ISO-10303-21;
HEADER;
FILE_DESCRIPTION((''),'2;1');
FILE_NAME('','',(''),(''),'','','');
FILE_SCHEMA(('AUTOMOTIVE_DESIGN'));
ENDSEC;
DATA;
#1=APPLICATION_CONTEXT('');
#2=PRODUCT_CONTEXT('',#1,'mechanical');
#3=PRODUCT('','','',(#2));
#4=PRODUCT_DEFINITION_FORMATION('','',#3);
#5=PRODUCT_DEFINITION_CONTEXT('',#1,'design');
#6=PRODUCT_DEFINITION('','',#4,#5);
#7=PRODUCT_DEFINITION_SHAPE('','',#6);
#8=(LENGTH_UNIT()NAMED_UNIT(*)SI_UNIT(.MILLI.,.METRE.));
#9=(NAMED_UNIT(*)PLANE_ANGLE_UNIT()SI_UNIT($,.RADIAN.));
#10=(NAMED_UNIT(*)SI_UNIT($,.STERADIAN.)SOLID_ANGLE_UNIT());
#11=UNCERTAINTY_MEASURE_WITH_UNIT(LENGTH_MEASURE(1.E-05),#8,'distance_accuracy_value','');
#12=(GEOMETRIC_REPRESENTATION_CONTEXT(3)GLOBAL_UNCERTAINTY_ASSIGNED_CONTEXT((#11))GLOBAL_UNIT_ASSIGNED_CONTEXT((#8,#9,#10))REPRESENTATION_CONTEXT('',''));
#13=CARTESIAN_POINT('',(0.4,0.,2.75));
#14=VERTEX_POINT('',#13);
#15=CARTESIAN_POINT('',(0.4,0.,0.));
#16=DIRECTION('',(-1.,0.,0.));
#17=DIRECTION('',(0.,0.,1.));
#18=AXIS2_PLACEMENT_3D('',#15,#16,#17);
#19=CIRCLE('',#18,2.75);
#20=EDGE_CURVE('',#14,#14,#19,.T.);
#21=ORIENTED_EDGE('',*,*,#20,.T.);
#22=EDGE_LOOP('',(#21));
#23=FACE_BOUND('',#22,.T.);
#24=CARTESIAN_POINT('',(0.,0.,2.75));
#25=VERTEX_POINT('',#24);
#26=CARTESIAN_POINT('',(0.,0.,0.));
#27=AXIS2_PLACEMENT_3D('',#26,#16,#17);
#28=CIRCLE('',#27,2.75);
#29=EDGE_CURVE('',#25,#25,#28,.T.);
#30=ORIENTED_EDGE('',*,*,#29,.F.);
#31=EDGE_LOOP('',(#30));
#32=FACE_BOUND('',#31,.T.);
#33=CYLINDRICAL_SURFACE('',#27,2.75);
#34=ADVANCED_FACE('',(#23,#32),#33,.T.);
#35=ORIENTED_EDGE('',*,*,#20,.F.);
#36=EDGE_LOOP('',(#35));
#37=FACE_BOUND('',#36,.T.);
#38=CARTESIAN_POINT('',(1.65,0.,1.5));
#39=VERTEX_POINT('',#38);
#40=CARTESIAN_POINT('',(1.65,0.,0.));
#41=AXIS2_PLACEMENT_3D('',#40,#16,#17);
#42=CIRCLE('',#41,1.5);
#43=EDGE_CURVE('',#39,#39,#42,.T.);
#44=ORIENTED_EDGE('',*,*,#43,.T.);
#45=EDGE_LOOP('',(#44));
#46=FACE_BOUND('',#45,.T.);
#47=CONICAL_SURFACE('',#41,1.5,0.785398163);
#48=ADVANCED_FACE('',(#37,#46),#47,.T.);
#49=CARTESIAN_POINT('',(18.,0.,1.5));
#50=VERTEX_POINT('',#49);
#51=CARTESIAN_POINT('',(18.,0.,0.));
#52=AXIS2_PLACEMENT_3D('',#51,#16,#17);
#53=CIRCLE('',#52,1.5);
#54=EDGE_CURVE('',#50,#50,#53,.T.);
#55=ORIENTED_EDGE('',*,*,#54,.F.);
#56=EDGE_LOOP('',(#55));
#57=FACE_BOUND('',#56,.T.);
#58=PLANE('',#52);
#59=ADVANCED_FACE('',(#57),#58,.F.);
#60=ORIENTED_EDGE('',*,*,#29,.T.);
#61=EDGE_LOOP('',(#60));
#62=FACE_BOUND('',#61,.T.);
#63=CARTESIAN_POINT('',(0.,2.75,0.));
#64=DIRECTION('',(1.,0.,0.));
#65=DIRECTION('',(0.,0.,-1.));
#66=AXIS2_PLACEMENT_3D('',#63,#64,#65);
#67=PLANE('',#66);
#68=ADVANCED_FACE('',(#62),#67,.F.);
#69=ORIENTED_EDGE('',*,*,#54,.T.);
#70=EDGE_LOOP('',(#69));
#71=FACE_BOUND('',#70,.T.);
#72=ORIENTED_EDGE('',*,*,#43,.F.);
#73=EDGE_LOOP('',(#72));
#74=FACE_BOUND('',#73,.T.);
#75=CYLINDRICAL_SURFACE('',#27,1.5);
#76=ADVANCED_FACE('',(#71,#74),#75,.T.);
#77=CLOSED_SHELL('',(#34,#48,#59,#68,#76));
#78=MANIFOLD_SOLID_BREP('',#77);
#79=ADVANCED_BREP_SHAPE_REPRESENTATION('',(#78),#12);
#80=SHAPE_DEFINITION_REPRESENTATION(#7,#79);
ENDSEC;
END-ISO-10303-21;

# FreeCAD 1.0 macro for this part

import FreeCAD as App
import Part
import Sketcher

V = App.Vector
Q = App.Units.Quantity

doc = App.newDocument("Part")
body = doc.addObject("PartDesign::Body", "Body")

# Sketch on XY plane
sketch1 = body.newObject("Sketcher::SketchObject", "Sketch")
sketch1.AttachmentSupport = (doc.getObject("XY_Plane"), [""])
sketch1.MapMode = "FlatFace"
sketch1.addGeometry([
    Part.LineSegment(V(0, 0, 0), V(18, 0, 0)),  # 0
    Part.LineSegment(V(18, 0, 0), V(18, 1.5, 0)),  # 1
    Part.LineSegment(V(18, 1.5, 0), V(1.65, 1.5, 0)),  # 2
    Part.LineSegment(V(1.65, 1.5, 0), V(0.4, 2.75, 0)),  # 3
    Part.LineSegment(V(0.4, 2.75, 0), V(0, 2.75, 0)),  # 4
    Part.LineSegment(V(0, 2.75, 0), V(0, 0, 0)),  # 5
], False)
sketch1.addConstraint([
    Sketcher.Constraint("Coincident", 0, 2, 1, 1),
    Sketcher.Constraint("Coincident", 1, 2, 2, 1),
    Sketcher.Constraint("Coincident", 2, 2, 3, 1),
    Sketcher.Constraint("Coincident", 3, 2, 4, 1),
    Sketcher.Constraint("Coincident", 4, 2, 5, 1),
    Sketcher.Constraint("Coincident", 5, 2, 0, 1),
    Sketcher.Constraint("Horizontal", 0),
    Sketcher.Constraint("Vertical", 1),
    Sketcher.Constraint("Horizontal", 2),
    Sketcher.Constraint("Horizontal", 4),
    Sketcher.Constraint("Vertical", 5),
    Sketcher.Constraint("Coincident", 5, 2, -1, 1),
    Sketcher.Constraint("DistanceX", 0, 1, 0, 2, 18.0),
    Sketcher.Constraint("Angle", 3, Q("135 deg")),
    Sketcher.Constraint("DistanceX", 4, 2, 4, 1, 0.4),
    Sketcher.Constraint("DistanceY", 1, 1, 1, 2, 1.5),
    Sketcher.Constraint("DistanceX", 2, 2, 2, 1, 16.35),
])
revolution = body.newObject("PartDesign::Revolution", "Revolution")
revolution.Profile = sketch1
revolution.ReferenceAxis = (sketch1, ["H_Axis"])
revolution.Angle = 360

doc.recompute()
